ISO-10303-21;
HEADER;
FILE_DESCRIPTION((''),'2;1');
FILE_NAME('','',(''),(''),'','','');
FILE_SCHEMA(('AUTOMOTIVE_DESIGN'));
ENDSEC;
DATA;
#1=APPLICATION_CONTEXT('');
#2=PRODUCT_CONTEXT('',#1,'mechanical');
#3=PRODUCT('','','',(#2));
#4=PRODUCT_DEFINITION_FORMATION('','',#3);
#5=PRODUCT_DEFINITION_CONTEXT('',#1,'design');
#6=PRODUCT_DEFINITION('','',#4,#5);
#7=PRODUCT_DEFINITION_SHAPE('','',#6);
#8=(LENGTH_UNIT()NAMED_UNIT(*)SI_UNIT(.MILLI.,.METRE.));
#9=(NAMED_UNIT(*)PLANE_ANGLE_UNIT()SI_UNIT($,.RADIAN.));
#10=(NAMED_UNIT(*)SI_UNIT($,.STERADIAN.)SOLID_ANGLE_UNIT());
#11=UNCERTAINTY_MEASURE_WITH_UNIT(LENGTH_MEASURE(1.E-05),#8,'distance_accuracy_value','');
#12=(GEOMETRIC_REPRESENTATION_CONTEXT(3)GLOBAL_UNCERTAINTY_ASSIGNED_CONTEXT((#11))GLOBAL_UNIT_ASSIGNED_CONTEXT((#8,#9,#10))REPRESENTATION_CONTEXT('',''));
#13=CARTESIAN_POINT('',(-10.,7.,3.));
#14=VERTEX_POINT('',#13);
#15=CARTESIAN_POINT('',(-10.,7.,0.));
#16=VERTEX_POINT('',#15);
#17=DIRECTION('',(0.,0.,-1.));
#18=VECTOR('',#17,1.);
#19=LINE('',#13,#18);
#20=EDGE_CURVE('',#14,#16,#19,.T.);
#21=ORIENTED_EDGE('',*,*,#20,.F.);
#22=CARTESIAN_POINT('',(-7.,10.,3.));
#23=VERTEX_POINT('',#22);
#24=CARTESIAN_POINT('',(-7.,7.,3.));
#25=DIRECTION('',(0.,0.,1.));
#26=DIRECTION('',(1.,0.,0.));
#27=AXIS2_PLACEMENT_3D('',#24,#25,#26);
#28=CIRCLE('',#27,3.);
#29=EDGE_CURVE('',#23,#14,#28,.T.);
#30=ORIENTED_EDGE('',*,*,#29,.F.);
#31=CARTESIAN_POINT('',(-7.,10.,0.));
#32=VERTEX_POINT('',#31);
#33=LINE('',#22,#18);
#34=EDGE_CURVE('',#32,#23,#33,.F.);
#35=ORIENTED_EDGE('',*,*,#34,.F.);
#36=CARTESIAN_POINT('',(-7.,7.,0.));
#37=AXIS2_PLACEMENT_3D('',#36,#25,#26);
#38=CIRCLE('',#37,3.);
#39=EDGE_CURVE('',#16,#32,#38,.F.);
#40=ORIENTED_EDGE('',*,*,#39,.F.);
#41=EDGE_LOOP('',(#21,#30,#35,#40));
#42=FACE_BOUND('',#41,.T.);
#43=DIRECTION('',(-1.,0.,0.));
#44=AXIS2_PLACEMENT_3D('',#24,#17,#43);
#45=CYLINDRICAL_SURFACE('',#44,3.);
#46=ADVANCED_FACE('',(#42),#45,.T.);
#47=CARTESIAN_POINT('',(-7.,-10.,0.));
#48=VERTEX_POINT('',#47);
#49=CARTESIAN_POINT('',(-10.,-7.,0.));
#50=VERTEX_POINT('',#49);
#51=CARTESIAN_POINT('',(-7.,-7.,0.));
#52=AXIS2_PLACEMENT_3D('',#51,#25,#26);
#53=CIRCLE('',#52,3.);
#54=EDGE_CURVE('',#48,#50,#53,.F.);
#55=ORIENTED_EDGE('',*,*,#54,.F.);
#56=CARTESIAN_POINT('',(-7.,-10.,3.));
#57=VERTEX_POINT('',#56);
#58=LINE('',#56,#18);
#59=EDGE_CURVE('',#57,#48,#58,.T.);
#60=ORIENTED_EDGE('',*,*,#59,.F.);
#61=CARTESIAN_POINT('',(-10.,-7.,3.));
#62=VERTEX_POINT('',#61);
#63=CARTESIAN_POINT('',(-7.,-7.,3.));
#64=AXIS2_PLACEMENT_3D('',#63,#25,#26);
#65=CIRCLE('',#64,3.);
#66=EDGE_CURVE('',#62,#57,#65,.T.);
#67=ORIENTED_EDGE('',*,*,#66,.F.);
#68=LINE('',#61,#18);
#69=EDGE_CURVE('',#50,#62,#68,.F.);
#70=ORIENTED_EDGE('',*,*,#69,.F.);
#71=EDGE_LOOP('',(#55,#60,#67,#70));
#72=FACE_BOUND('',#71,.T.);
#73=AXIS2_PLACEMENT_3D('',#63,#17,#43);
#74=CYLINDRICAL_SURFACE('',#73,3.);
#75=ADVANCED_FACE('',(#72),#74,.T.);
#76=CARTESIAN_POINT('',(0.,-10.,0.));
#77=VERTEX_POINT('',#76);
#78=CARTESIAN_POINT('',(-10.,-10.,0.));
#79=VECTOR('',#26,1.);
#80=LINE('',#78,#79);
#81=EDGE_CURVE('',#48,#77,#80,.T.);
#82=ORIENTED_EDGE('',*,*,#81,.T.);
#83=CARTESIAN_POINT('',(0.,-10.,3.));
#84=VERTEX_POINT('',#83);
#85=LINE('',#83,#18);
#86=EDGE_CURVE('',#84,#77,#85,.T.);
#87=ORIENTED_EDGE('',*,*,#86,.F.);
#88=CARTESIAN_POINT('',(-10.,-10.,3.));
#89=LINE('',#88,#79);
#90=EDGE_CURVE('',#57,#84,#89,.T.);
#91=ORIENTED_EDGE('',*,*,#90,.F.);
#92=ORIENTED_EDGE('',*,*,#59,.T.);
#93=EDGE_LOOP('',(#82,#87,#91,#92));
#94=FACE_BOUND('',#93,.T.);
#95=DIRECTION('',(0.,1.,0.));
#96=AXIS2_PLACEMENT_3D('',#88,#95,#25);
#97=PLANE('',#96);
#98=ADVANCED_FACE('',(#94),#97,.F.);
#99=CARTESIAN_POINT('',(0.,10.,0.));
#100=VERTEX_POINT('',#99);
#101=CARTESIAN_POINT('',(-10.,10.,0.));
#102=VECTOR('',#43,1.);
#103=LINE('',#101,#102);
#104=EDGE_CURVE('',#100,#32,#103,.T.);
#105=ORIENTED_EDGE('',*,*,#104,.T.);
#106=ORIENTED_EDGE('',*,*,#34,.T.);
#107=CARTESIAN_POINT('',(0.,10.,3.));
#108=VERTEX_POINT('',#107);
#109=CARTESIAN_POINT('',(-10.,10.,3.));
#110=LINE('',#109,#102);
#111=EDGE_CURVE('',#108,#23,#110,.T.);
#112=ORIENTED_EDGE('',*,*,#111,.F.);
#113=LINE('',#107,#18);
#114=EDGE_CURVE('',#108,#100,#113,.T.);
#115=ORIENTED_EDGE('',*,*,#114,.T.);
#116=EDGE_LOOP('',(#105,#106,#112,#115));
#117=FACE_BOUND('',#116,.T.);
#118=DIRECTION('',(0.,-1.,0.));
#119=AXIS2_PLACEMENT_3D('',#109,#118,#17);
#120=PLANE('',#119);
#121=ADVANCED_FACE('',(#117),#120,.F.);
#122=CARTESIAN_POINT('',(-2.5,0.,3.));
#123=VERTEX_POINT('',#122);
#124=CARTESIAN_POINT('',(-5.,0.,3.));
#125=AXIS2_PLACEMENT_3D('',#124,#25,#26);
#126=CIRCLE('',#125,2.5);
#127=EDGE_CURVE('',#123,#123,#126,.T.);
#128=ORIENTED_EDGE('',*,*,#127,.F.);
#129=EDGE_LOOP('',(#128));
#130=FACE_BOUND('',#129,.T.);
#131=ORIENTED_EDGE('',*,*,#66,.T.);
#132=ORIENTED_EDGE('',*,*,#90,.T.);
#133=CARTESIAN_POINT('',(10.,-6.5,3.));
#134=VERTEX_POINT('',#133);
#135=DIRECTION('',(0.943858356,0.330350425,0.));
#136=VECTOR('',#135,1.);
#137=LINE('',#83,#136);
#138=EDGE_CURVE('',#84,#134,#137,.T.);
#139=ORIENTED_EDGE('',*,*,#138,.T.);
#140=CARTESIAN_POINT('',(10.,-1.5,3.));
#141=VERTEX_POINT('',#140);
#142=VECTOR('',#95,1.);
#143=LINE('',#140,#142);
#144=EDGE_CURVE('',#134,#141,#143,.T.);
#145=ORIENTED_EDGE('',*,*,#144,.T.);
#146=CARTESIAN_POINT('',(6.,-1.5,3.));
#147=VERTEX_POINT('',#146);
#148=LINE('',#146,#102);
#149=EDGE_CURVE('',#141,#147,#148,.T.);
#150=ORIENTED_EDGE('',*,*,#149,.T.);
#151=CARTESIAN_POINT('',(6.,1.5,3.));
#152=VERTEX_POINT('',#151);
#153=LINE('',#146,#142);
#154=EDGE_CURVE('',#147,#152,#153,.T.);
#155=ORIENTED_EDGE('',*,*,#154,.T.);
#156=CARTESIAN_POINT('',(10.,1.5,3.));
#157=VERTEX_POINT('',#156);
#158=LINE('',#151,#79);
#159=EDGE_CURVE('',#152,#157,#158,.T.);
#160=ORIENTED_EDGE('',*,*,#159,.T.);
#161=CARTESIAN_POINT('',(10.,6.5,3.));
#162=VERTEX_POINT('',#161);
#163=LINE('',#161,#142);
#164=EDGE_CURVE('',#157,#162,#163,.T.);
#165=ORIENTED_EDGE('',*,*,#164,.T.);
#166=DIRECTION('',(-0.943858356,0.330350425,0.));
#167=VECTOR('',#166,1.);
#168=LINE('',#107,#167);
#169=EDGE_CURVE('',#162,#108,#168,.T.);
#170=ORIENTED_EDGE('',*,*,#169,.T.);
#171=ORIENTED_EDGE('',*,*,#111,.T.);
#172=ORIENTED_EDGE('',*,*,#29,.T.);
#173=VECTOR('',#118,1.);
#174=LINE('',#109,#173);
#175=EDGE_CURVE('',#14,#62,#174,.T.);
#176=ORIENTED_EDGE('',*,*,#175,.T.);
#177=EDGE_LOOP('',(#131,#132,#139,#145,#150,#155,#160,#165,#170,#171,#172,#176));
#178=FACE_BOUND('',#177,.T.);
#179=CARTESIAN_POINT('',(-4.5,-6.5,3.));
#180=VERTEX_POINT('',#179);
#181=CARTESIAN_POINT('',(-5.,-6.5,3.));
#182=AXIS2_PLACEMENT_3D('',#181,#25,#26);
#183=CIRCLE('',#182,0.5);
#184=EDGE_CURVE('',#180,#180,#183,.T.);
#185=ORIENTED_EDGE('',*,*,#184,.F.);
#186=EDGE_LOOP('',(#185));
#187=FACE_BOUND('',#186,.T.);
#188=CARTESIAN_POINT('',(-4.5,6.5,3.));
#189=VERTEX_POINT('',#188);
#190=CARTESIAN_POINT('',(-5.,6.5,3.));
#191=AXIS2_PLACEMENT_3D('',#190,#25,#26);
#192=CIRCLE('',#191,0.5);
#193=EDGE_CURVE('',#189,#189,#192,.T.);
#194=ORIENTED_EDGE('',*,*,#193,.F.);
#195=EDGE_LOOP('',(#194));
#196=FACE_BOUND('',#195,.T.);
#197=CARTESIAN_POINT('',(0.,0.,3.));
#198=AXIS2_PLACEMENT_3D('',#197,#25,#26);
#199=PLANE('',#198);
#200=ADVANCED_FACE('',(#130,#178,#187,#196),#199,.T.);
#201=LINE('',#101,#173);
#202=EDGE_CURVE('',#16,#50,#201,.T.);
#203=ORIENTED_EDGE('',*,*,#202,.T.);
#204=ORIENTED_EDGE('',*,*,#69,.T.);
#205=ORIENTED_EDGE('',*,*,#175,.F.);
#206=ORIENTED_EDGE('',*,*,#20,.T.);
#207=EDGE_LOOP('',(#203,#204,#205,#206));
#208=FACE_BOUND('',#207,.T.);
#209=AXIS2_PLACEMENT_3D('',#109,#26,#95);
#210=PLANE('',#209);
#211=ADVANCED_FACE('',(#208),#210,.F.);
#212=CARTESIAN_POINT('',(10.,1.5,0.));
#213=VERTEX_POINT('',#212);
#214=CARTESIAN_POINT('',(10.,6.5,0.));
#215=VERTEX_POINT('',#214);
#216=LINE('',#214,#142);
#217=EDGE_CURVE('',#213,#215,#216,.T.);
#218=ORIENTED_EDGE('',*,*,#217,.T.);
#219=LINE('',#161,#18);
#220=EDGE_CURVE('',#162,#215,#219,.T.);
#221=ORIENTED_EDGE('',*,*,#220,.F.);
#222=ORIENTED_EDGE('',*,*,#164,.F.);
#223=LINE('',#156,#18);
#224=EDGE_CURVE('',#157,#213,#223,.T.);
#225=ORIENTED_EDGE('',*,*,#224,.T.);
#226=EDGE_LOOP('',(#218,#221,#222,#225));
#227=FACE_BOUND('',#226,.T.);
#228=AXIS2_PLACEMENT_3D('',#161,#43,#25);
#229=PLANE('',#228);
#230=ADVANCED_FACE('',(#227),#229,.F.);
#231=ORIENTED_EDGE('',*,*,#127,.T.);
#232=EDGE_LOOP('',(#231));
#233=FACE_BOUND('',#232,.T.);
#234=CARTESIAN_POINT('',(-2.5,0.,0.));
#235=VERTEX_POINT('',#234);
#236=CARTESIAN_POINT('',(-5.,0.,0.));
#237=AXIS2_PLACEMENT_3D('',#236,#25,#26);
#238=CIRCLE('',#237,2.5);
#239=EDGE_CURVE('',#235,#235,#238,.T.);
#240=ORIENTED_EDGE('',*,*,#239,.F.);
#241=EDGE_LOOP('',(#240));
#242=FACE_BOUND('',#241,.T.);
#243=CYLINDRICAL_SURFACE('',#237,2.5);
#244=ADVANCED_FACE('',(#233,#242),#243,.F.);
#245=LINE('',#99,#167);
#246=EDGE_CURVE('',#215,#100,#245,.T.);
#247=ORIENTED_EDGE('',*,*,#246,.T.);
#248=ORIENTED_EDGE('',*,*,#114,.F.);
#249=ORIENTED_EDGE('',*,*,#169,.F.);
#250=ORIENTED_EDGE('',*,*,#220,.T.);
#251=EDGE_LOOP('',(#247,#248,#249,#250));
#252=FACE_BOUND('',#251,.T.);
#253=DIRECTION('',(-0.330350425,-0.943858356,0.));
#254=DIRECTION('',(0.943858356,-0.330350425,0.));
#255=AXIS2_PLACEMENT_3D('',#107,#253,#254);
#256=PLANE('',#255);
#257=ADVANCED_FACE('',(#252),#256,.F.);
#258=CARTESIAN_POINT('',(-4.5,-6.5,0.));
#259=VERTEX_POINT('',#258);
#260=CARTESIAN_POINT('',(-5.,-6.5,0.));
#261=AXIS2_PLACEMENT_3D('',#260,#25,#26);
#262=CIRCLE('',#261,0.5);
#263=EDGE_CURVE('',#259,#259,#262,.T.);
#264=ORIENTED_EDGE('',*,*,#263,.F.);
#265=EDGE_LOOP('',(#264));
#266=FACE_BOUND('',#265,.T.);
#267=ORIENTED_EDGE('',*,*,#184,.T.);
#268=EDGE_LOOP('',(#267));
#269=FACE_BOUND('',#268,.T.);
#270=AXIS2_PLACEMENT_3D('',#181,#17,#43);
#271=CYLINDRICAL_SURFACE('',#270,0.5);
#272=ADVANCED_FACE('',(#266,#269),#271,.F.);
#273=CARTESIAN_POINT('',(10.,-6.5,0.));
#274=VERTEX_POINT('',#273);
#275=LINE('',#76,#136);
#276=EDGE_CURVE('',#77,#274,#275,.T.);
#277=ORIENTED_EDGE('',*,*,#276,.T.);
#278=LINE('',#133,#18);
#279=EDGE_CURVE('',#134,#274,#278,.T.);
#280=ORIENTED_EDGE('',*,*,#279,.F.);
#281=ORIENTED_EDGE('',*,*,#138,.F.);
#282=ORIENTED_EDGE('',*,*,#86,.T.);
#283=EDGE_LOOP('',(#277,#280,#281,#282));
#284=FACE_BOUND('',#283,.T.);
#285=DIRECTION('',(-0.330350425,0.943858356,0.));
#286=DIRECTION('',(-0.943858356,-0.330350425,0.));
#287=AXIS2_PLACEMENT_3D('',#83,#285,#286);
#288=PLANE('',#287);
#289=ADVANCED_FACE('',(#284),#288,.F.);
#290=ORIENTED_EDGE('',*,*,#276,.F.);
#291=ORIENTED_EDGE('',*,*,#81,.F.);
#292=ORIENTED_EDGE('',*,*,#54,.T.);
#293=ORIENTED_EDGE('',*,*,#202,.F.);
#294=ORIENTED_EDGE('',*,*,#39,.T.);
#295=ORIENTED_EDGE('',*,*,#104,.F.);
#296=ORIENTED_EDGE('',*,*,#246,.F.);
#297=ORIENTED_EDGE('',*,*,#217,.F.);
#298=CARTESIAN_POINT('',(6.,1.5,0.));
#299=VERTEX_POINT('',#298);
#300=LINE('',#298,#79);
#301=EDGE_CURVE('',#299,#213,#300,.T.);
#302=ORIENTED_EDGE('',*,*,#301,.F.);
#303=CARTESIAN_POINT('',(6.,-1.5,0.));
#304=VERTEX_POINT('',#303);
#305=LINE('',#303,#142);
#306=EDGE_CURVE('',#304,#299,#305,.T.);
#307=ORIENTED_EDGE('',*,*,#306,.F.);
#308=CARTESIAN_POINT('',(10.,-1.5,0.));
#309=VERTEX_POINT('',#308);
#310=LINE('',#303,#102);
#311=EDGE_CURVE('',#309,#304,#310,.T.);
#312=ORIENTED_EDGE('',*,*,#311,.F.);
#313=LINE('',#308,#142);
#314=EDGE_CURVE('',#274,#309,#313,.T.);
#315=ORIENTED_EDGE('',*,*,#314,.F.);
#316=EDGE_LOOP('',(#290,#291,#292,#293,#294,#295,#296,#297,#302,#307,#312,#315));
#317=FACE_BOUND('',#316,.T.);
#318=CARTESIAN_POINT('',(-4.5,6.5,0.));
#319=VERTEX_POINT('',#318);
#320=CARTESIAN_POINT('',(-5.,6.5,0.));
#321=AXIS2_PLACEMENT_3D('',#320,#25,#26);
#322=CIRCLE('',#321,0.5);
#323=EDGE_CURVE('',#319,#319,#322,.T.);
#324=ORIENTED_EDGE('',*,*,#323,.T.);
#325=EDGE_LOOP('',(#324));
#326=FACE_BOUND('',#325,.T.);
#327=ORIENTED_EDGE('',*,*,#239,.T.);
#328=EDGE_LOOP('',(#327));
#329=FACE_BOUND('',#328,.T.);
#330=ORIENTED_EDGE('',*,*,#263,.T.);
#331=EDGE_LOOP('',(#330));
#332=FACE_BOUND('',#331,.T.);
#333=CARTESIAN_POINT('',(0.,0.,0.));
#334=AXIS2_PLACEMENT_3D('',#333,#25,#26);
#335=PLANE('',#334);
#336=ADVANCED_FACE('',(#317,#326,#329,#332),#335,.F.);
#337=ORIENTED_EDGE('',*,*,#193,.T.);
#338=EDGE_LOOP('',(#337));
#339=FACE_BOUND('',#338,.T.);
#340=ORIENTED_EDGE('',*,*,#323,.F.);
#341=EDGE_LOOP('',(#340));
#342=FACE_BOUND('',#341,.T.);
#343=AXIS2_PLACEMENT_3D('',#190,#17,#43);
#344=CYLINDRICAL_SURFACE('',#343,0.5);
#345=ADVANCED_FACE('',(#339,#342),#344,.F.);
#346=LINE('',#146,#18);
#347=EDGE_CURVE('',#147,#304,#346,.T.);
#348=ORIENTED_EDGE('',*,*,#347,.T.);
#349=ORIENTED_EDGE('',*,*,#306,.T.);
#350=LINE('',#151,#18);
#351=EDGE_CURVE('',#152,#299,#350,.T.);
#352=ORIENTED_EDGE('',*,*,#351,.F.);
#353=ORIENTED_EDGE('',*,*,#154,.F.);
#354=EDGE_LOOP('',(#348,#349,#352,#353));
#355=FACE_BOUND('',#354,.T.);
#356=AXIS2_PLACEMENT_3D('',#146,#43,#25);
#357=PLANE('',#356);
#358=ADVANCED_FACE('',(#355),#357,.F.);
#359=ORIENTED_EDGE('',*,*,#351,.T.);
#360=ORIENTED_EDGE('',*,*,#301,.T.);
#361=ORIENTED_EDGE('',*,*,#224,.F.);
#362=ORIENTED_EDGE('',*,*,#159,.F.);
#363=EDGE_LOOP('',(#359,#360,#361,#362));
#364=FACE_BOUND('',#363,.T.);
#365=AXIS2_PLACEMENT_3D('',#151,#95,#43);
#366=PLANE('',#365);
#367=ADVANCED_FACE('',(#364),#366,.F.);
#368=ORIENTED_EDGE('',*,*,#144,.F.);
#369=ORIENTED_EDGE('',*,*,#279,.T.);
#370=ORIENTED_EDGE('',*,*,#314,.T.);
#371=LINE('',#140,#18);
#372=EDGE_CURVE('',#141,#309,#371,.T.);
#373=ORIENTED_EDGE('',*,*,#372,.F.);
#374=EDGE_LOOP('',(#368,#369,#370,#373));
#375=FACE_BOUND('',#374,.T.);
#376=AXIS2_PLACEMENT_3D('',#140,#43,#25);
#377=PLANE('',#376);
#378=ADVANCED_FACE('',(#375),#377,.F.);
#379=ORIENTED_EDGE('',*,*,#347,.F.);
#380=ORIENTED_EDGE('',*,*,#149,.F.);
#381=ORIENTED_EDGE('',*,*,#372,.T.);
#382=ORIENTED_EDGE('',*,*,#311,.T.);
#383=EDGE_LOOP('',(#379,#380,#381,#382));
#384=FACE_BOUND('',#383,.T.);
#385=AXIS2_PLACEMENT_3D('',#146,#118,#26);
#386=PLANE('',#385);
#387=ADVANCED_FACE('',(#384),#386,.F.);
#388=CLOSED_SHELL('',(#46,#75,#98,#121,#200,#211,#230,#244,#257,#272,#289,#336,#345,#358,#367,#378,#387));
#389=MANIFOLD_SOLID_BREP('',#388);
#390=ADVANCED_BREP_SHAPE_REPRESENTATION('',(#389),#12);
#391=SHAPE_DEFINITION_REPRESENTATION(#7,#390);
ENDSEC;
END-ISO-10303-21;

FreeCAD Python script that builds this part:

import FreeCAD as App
import Part
import Sketcher


def edges_at(feature, points):
    """Names of the edges that pass closest to the given points."""
    edges = feature.Shape.Edges
    near = lambda p: min(range(len(edges)), key=lambda i: edges[i].distToShape(Part.Vertex(*p))[0])
    return sorted({f"Edge{near(p) + 1}" for p in points})


def add_polygon(sketch, points):
    """Adds a closed chain of lines whose ends are joined by coincident constraints."""
    first, n = sketch.GeometryCount, len(points)
    for a, b in zip(points, points[1:] + points[:1]):
        sketch.addGeometry(Part.LineSegment(App.Vector(*a, 0), App.Vector(*b, 0)), False)
    for i in range(n):
        sketch.addConstraint(Sketcher.Constraint("Coincident", first + i, 2, first + (i + 1) % n, 1))

doc = App.newDocument("Part")
body = doc.addObject("PartDesign::Body", "Body")

# Sketch on XY plane
sketch1 = doc.addObject("Sketcher::SketchObject", "Sketch")
body.addObject(sketch1)
sketch1.AttachmentSupport = (doc.XY_Plane, [""])
sketch1.MapMode = "FlatFace"
add_polygon(sketch1, [(0, 10), (-10, 10), (-10, -10), (0, -10), (10, -6.5), (10, -1.5), (6, -1.5), (6, 1.5), (10, 1.5), (10, 6.5)])  # lines 0-9
sketch1.addGeometry(Part.Circle(App.Vector(-5, -6.5, 0), App.Vector(0, 0, 1), 0.5), False)  # 10
sketch1.addGeometry(Part.Circle(App.Vector(-5, 6.5, 0), App.Vector(0, 0, 1), 0.5), False)  # 11
sketch1.addConstraint(Sketcher.Constraint("Horizontal", 0))
sketch1.addConstraint(Sketcher.Constraint("Vertical", 1))
sketch1.addConstraint(Sketcher.Constraint("Horizontal", 2))
sketch1.addConstraint(Sketcher.Constraint("Vertical", 4))
sketch1.addConstraint(Sketcher.Constraint("Horizontal", 5))
sketch1.addConstraint(Sketcher.Constraint("Vertical", 6))
sketch1.addConstraint(Sketcher.Constraint("Horizontal", 7))
sketch1.addConstraint(Sketcher.Constraint("Vertical", 8))
sketch1.addConstraint(Sketcher.Constraint("Equal", 10, 11))
sketch1.addConstraint(Sketcher.Constraint("Symmetric", 2, 2, 9, 2, -1, 1))
sketch1.addConstraint(Sketcher.Constraint("Symmetric", 10, 3, 11, 3, -1))
sketch1.addConstraint(Sketcher.Constraint("Symmetric", 4, 2, 7, 2, -1))
sketch1.addConstraint(Sketcher.Constraint("PointOnObject", 2, 2, -2))
sketch1.addConstraint(Sketcher.Constraint("Horizontal", 10, 3, 3, 2))
sketch1.addConstraint(Sketcher.Constraint("Horizontal", 11, 3, 8, 2))
sketch1.addConstraint(Sketcher.Constraint("Diameter", 10, 1.0))
sketch1.addConstraint(Sketcher.Constraint("DistanceX", 0, 2, 0, 1, 10.0))
sketch1.addConstraint(Sketcher.Constraint("DistanceX", 5, 2, 5, 1, 4.0))
sketch1.addConstraint(Sketcher.Constraint("DistanceY", 1, 2, 1, 1, 20.0))
sketch1.addConstraint(Sketcher.Constraint("DistanceY", 4, 1, 4, 2, 5.0))
sketch1.addConstraint(Sketcher.Constraint("DistanceY", 6, 1, 6, 2, 3.0))
sketch1.addConstraint(Sketcher.Constraint("DistanceX", 10, 3, -1, 1, 5.0))
sketch1.addConstraint(Sketcher.Constraint("DistanceX", -1, 1, 3, 2, 10.0))
pad1 = doc.addObject("PartDesign::Pad", "Pad")
body.addObject(pad1)
pad1.Profile = sketch1
pad1.Length = 3
doc.recompute()

fillet = doc.addObject("PartDesign::Fillet", "Fillet")
body.addObject(fillet)
fillet.Base = (pad1, edges_at(pad1, [(-10, 10, 1.5), (-10, -10, 1.5)]))
fillet.Radius = 3

# Sketch on XY plane
sketch2 = doc.addObject("Sketcher::SketchObject", "Sketch001")
body.addObject(sketch2)
sketch2.AttachmentSupport = (doc.XY_Plane, [""])
sketch2.MapMode = "FlatFace"
sketch2.AttachmentOffset = App.Placement(App.Vector(0, 0, 3), App.Rotation())
sketch2.addGeometry(Part.Circle(App.Vector(-5, 0, 0), App.Vector(0, 0, 1), 2.5), False)
sketch2.addConstraint(Sketcher.Constraint("PointOnObject", 0, 3, -1))
sketch2.addConstraint(Sketcher.Constraint("Diameter", 0, 5.0))
sketch2.addConstraint(Sketcher.Constraint("DistanceX", 0, 3, -1, 1, 5.0))
pocket1 = doc.addObject("PartDesign::Pocket", "Pocket")
body.addObject(pocket1)
pocket1.Profile = sketch2
pocket1.Length = 3

doc.recompute()
